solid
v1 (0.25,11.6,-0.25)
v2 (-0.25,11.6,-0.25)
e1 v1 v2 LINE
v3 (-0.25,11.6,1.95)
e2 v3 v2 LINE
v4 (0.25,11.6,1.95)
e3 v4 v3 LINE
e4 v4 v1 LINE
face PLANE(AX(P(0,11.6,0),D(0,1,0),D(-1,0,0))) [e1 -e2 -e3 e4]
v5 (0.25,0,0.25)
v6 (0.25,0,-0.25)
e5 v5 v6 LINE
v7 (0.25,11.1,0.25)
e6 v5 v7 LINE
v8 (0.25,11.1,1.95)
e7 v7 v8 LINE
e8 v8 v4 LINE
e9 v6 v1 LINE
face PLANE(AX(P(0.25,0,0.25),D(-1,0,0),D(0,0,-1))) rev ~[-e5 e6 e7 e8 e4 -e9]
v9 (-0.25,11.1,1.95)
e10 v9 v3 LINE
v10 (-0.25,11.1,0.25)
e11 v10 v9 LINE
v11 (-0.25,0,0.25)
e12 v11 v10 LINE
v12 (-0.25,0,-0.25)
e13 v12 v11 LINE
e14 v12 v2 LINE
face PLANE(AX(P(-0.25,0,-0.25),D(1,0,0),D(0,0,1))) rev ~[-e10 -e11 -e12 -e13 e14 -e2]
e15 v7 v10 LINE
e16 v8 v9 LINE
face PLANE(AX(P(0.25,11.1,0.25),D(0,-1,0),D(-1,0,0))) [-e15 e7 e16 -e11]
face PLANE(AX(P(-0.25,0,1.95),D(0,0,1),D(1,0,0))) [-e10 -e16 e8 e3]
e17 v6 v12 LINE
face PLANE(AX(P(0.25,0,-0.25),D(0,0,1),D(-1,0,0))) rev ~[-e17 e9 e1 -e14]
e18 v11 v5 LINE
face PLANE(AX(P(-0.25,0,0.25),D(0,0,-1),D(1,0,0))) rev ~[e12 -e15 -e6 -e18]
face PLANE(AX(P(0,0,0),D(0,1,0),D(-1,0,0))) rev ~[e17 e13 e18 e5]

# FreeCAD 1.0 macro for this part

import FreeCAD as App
import Part
import Sketcher
from FreeCAD import Vector

doc = App.newDocument("Part")
body = doc.addObject("PartDesign::Body", "Body")

sketch1 = doc.addObject("Sketcher::SketchObject", "Sketch")
body.addObject(sketch1)
sketch1.AttachmentSupport = (doc.XZ_Plane, [""])
sketch1.MapMode = "FlatFace"
sketch1.addGeometry(Part.LineSegment(Vector(-0.2, -0.2, 0), Vector(-0.2, 0.2, 0)), False)
sketch1.addGeometry(Part.LineSegment(Vector(-0.2, 0.2, 0), Vector(0.2, 0.2, 0)), False)
sketch1.addGeometry(Part.LineSegment(Vector(0.2, 0.2, 0), Vector(0.2, -0.2, 0)), False)
sketch1.addGeometry(Part.LineSegment(Vector(0.2, -0.2, 0), Vector(-0.2, -0.2, 0)), False)
sketch1.addConstraint(Sketcher.Constraint("Coincident", 0, 2, 1, 1))
sketch1.addConstraint(Sketcher.Constraint("Coincident", 1, 2, 2, 1))
sketch1.addConstraint(Sketcher.Constraint("Coincident", 2, 2, 3, 1))
sketch1.addConstraint(Sketcher.Constraint("Coincident", 3, 2, 0, 1))
sketch1.addConstraint(Sketcher.Constraint("Vertical", 0))
sketch1.addConstraint(Sketcher.Constraint("Horizontal", 1))
sketch1.addConstraint(Sketcher.Constraint("Vertical", 2))
sketch1.addConstraint(Sketcher.Constraint("Horizontal", 3))
sketch1.addConstraint(Sketcher.Constraint("Symmetric", 0, 2, 2, 2, -1, 1))
sketch1.addConstraint(Sketcher.Constraint("Equal", 3, 0))
sketch1.addConstraint(Sketcher.Constraint("DistanceX", 1, 1, 1, 2, 0.5))
pad1 = doc.addObject("PartDesign::Pad", "Pad")
body.addObject(pad1)
pad1.Profile = sketch1
pad1.Length = 11.6
pad1.Reversed = True

sketch2 = doc.addObject("Sketcher::SketchObject", "Sketch001")
body.addObject(sketch2)
sketch2.AttachmentSupport = (doc.XY_Plane, [""])
sketch2.MapMode = "FlatFace"
sketch2.AttachmentOffset = App.Placement(Vector(0, 0, 0.25), App.Rotation())
sketch2.addGeometry(Part.LineSegment(Vector(0.2, 11.1, 0), Vector(0.2, 11.6, 0)), False)
sketch2.addGeometry(Part.LineSegment(Vector(0.2, 11.6, 0), Vector(-0.2, 11.6, 0)), False)
sketch2.addGeometry(Part.LineSegment(Vector(-0.2, 11.6, 0), Vector(-0.2, 11.1, 0)), False)
sketch2.addGeometry(Part.LineSegment(Vector(-0.2, 11.1, 0), Vector(0.2, 11.1, 0)), False)
sketch2.addConstraint(Sketcher.Constraint("Coincident", 0, 2, 1, 1))
sketch2.addConstraint(Sketcher.Constraint("Coincident", 1, 2, 2, 1))
sketch2.addConstraint(Sketcher.Constraint("Coincident", 2, 2, 3, 1))
sketch2.addConstraint(Sketcher.Constraint("Coincident", 3, 2, 0, 1))
sketch2.addConstraint(Sketcher.Constraint("Vertical", 0))
sketch2.addConstraint(Sketcher.Constraint("Horizontal", 1))
sketch2.addConstraint(Sketcher.Constraint("Vertical", 2))
sketch2.addConstraint(Sketcher.Constraint("Horizontal", 3))
sketch2.addConstraint(Sketcher.Constraint("Equal", 3, 0))
sketch2.addConstraint(Sketcher.Constraint("DistanceX", 1, 2, 1, 1, 0.5))
sketch2.addConstraint(Sketcher.Constraint("DistanceY", -1, 1, 0, 2, 11.6))
sketch2.addConstraint(Sketcher.Constraint("DistanceX", -1, 1, 0, 2, 0.25))
pad2 = doc.addObject("PartDesign::Pad", "Pad001")
body.addObject(pad2)
pad2.Profile = sketch2
pad2.Length = 1.7

doc.recompute()
